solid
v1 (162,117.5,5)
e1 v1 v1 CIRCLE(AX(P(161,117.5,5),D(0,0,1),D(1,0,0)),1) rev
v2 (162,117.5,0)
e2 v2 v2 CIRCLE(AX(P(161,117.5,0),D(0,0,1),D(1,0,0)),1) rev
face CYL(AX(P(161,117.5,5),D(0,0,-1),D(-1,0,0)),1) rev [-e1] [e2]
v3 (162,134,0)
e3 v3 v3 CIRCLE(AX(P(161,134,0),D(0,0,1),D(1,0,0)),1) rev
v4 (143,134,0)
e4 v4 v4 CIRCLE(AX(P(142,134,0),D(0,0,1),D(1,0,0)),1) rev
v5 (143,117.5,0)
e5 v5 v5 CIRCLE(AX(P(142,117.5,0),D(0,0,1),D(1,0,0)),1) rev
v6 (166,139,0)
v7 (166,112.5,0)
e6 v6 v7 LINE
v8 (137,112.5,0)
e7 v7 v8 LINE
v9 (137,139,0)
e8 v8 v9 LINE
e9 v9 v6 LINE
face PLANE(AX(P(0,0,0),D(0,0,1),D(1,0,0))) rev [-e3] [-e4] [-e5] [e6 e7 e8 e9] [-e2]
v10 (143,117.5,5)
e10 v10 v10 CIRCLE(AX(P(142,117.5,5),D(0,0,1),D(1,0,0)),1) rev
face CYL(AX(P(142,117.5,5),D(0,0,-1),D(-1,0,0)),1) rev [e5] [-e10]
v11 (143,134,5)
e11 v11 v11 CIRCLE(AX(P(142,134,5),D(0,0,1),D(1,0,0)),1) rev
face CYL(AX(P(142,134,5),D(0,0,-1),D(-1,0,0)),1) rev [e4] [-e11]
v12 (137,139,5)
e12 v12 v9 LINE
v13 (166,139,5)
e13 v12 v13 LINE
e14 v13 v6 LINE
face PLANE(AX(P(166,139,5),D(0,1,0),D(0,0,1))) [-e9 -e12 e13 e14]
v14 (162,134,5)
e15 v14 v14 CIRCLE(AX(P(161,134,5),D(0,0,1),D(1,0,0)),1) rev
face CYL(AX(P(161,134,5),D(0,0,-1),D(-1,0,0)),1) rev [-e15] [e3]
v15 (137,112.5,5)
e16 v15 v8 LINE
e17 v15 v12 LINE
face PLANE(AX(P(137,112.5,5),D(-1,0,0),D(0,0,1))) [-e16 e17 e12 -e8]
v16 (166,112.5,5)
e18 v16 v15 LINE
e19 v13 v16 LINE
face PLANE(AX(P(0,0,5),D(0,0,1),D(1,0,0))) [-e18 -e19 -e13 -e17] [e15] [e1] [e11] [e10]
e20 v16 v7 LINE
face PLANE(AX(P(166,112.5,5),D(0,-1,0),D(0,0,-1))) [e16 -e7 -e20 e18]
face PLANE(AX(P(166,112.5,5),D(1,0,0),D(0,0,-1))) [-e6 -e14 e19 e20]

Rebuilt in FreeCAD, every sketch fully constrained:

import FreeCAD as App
import Part
import Sketcher
Q = App.Units.Quantity

doc = App.newDocument("Part")
params = doc.addObject("Spreadsheet::Sheet", "Params")
for row, (alias, value) in enumerate([
    ("sketch1_diameter", "2 mm"),
    ("sketch1_width", "66 mm"),
    ("sketch1_width2", "180 mm"),
    ("sketch1_width3", "50 mm"),
    ("sketch1_height", "60 mm"),
    ("pad1_length", "5 mm"),
    ("sketch2_diameter", "2 mm"),
    ("sketch3_diameter", "2 mm"),
    ("sketch3_width", "20 mm"),
    ("sketch3_height", "5 mm"),
    ("sketch4_width", "50 mm"),
    ("sketch4_height", "90 mm"),
    ("sketch5_width", "29 mm"),
    ("sketch5_height", "26.5 mm"),
], start=1):
    params.set(f"A{row}", alias)
    params.set(f"B{row}", "=" + value)
    params.setAlias(f"B{row}", alias)

body = doc.addObject("PartDesign::Body", "Body")

sketch1 = body.newObject("Sketcher::SketchObject", "Sketch")
sketch1.AttachmentSupport = (doc.getObject("XY_Plane"), [""])
sketch1.MapMode = "FlatFace"
sketch1.addGeometry([
    Part.LineSegment(App.Vector(-66, 110, 0), App.Vector(-66, 60, 0)),
    Part.LineSegment(App.Vector(-66, 60, 0), App.Vector(0, 60, 0)),
    Part.LineSegment(App.Vector(0, 60, 0), App.Vector(0, 0, 0)),
    Part.LineSegment(App.Vector(0, 0, 0), App.Vector(180, 0, 0)),
    Part.LineSegment(App.Vector(180, 0, 0), App.Vector(180, 60, 0)),
    Part.LineSegment(App.Vector(180, 60, 0), App.Vector(246, 60, 0)),
    Part.LineSegment(App.Vector(246, 60, 0), App.Vector(246, 110, 0)),
    Part.LineSegment(App.Vector(246, 110, 0), App.Vector(180, 110, 0)),
    Part.LineSegment(App.Vector(180, 110, 0), App.Vector(180, 300, 0)),
    Part.LineSegment(App.Vector(180, 300, 0), App.Vector(130, 300, 0)),
    Part.LineSegment(App.Vector(130, 300, 0), App.Vector(130, 150, 0)),
    Part.LineSegment(App.Vector(130, 150, 0), App.Vector(50, 150, 0)),
    Part.LineSegment(App.Vector(50, 150, 0), App.Vector(50, 300, 0)),
    Part.LineSegment(App.Vector(50, 300, 0), App.Vector(0, 300, 0)),
    Part.LineSegment(App.Vector(0, 300, 0), App.Vector(0, 110, 0)),
    Part.LineSegment(App.Vector(0, 110, 0), App.Vector(-66, 110, 0)),
    Part.Circle(App.Vector(161, 134, 0), App.Vector(0, 0, 1), 1),
    Part.Circle(App.Vector(19, 117.5, 0), App.Vector(0, 0, 1), 1),
    Part.Circle(App.Vector(38, 117.5, 0), App.Vector(0, 0, 1), 1),
    Part.Circle(App.Vector(142, 117.5, 0), App.Vector(0, 0, 1), 1),
    Part.Circle(App.Vector(161, 117.5, 0), App.Vector(0, 0, 1), 1),
    Part.Circle(App.Vector(19, 134, 0), App.Vector(0, 0, 1), 1),
    Part.Circle(App.Vector(38, 134, 0), App.Vector(0, 0, 1), 1),
    Part.Circle(App.Vector(142, 134, 0), App.Vector(0, 0, 1), 1),
], False)
sketch1.addConstraint([
    Sketcher.Constraint("Coincident", 0, 2, 1, 1),
    Sketcher.Constraint("Coincident", 1, 2, 2, 1),
    Sketcher.Constraint("Coincident", 2, 2, 3, 1),
    Sketcher.Constraint("Coincident", 3, 2, 4, 1),
    Sketcher.Constraint("Coincident", 4, 2, 5, 1),
    Sketcher.Constraint("Coincident", 5, 2, 6, 1),
    Sketcher.Constraint("Coincident", 6, 2, 7, 1),
    Sketcher.Constraint("Coincident", 7, 2, 8, 1),
    Sketcher.Constraint("Coincident", 8, 2, 9, 1),
    Sketcher.Constraint("Coincident", 9, 2, 10, 1),
    Sketcher.Constraint("Coincident", 10, 2, 11, 1),
    Sketcher.Constraint("Coincident", 11, 2, 12, 1),
    Sketcher.Constraint("Coincident", 12, 2, 13, 1),
    Sketcher.Constraint("Coincident", 13, 2, 14, 1),
    Sketcher.Constraint("Coincident", 14, 2, 15, 1),
    Sketcher.Constraint("Coincident", 15, 2, 0, 1),
    Sketcher.Constraint("Vertical", 0),
    Sketcher.Constraint("Horizontal", 1),
    Sketcher.Constraint("Vertical", 2),
    Sketcher.Constraint("Horizontal", 3),
    Sketcher.Constraint("Vertical", 4),
    Sketcher.Constraint("Horizontal", 5),
    Sketcher.Constraint("Vertical", 6),
    Sketcher.Constraint("Horizontal", 7),
    Sketcher.Constraint("Vertical", 8),
    Sketcher.Constraint("Horizontal", 9),
    Sketcher.Constraint("Vertical", 10),
    Sketcher.Constraint("Horizontal", 11),
    Sketcher.Constraint("Vertical", 12),
    Sketcher.Constraint("Horizontal", 13),
    Sketcher.Constraint("Vertical", 14),
    Sketcher.Constraint("Horizontal", 15),
    Sketcher.Constraint("Coincident", 2, 2, -1, 1),
    Sketcher.Constraint("Equal", 16, 17),
    Sketcher.Constraint("Equal", 17, 18),
    Sketcher.Constraint("Equal", 18, 19),
    Sketcher.Constraint("Equal", 19, 20),
    Sketcher.Constraint("Equal", 20, 21),
    Sketcher.Constraint("Equal", 21, 22),
    Sketcher.Constraint("Equal", 22, 23),
    Sketcher.Constraint("PointOnObject", 13, 2, -2),
    Sketcher.Constraint("Horizontal", 17, 3, 18, 3),
    Sketcher.Constraint("Horizontal", 18, 3, 19, 3),
    Sketcher.Constraint("Horizontal", 19, 3, 20, 3),
    Sketcher.Constraint("Horizontal", 16, 3, 21, 3),
    Sketcher.Constraint("Horizontal", 21, 3, 22, 3),
    Sketcher.Constraint("Horizontal", 22, 3, 23, 3),
    Sketcher.Constraint("Horizontal", 1, 2, 4, 2),
    Sketcher.Constraint("Horizontal", 9, 2, 12, 2),
    Sketcher.Constraint("Horizontal", 7, 2, 14, 2),
    Sketcher.Constraint("Vertical", 16, 3, 20, 3),
    Sketcher.Constraint("Vertical", 17, 3, 21, 3),
    Sketcher.Constraint("Vertical", 18, 3, 22, 3),
    Sketcher.Constraint("Vertical", 19, 3, 23, 3),
    Sketcher.Constraint("Vertical", 4, 2, 7, 2),
    Sketcher.Constraint("Equal", 1, 5),
    Sketcher.Constraint("Equal", 9, 13),
    Sketcher.Constraint("Equal", 13, 0),
    Sketcher.Constraint("Diameter", 16, Q("2 mm")),
    Sketcher.Constraint("DistanceX", 1, 1, 1, 2, Q("66 mm")),
    Sketcher.Constraint("DistanceX", 3, 1, 3, 2, Q("180 mm")),
    Sketcher.Constraint("DistanceX", 9, 2, 9, 1, Q("50 mm")),
    Sketcher.Constraint("DistanceY", 2, 2, 2, 1, Q("60 mm")),
    Sketcher.Constraint("DistanceY", 8, 1, 8, 2, Q("190 mm")),
    Sketcher.Constraint("DistanceY", 10, 2, 10, 1, Q("150 mm")),
    Sketcher.Constraint("DistanceX", -1, 1, 16, 3, Q("161 mm")),
    Sketcher.Constraint("DistanceY", -1, 1, 16, 3, Q("134 mm")),
    Sketcher.Constraint("DistanceX", -1, 1, 17, 3, Q("19 mm")),
    Sketcher.Constraint("DistanceX", -1, 1, 18, 3, Q("38 mm")),
    Sketcher.Constraint("DistanceX", -1, 1, 19, 3, Q("142 mm")),
    Sketcher.Constraint("DistanceY", -1, 1, 17, 3, Q("117.5 mm")),
])
sketch1.setExpression("Constraints[58]", "Params.sketch1_diameter")
sketch1.setExpression("Constraints[59]", "Params.sketch1_width")
sketch1.setExpression("Constraints[60]", "Params.sketch1_width2")
sketch1.setExpression("Constraints[61]", "Params.sketch1_width3")
sketch1.setExpression("Constraints[62]", "Params.sketch1_height")
pad1 = body.newObject("PartDesign::Pad", "Pad")
pad1.Profile = sketch1
pad1.setExpression("Length", "Params.pad1_length")

sketch2 = body.newObject("Sketcher::SketchObject", "Sketch001")
sketch2.AttachmentSupport = (doc.getObject("XY_Plane"), [""])
sketch2.MapMode = "FlatFace"
sketch2.AttachmentOffset = App.Placement(App.Vector(0, 0, 5), App.Rotation())
sketch2.addGeometry([
    Part.Circle(App.Vector(-58, 103, 0), App.Vector(0, 0, 1), 1),
    Part.Circle(App.Vector(-58, 67, 0), App.Vector(0, 0, 1), 1),
    Part.Circle(App.Vector(238, 67, 0), App.Vector(0, 0, 1), 1),
    Part.Circle(App.Vector(238, 103, 0), App.Vector(0, 0, 1), 1),
], False)
sketch2.addConstraint([
    Sketcher.Constraint("Equal", 0, 1),
    Sketcher.Constraint("Equal", 1, 2),
    Sketcher.Constraint("Equal", 2, 3),
    Sketcher.Constraint("Horizontal", 1, 3, 2, 3),
    Sketcher.Constraint("Horizontal", 0, 3, 3, 3),
    Sketcher.Constraint("Vertical", 0, 3, 1, 3),
    Sketcher.Constraint("Vertical", 2, 3, 3, 3),
    Sketcher.Constraint("Diameter", 0, Q("2 mm")),
    Sketcher.Constraint("DistanceX", 0, 3, -1, 1, Q("58 mm")),
    Sketcher.Constraint("DistanceY", -1, 1, 0, 3, Q("103 mm")),
    Sketcher.Constraint("DistanceY", -1, 1, 1, 3, Q("67 mm")),
    Sketcher.Constraint("DistanceX", -1, 1, 2, 3, Q("238 mm")),
])
sketch2.setExpression("Constraints[7]", "Params.sketch2_diameter")
pocket1 = body.newObject("PartDesign::Pocket", "Pocket")
pocket1.Profile = sketch2
pocket1.Type = "ThroughAll"

sketch3 = body.newObject("Sketcher::SketchObject", "Sketch002")
sketch3.AttachmentSupport = (doc.getObject("XY_Plane"), [""])
sketch3.MapMode = "FlatFace"
sketch3.AttachmentOffset = App.Placement(App.Vector(0, 0, 5), App.Rotation())
sketch3.addGeometry([
    Part.Circle(App.Vector(19, 77, 0), App.Vector(0, 0, 1), 1),
    Part.Circle(App.Vector(19, 99.5, 0), App.Vector(0, 0, 1), 1),
    Part.Circle(App.Vector(161, 77, 0), App.Vector(0, 0, 1), 1),
    Part.Circle(App.Vector(161, 99.5, 0), App.Vector(0, 0, 1), 1),
    Part.LineSegment(App.Vector(-16, 92.5, 0), App.Vector(-16, 87.5, 0)),
    Part.LineSegment(App.Vector(-16, 87.5, 0), App.Vector(4, 87.5, 0)),
    Part.LineSegment(App.Vector(4, 87.5, 0), App.Vector(4, 92.5, 0)),
    Part.LineSegment(App.Vector(4, 92.5, 0), App.Vector(-16, 92.5, 0)),
    Part.LineSegment(App.Vector(176, 92.5, 0), App.Vector(176, 87.5, 0)),
    Part.LineSegment(App.Vector(176, 87.5, 0), App.Vector(196, 87.5, 0)),
    Part.LineSegment(App.Vector(196, 87.5, 0), App.Vector(196, 92.5, 0)),
    Part.LineSegment(App.Vector(196, 92.5, 0), App.Vector(176, 92.5, 0)),
], False)
sketch3.addConstraint([
    Sketcher.Constraint("Coincident", 4, 2, 5, 1),
    Sketcher.Constraint("Coincident", 5, 2, 6, 1),
    Sketcher.Constraint("Coincident", 6, 2, 7, 1),
    Sketcher.Constraint("Coincident", 7, 2, 4, 1),
    Sketcher.Constraint("Coincident", 8, 2, 9, 1),
    Sketcher.Constraint("Coincident", 9, 2, 10, 1),
    Sketcher.Constraint("Coincident", 10, 2, 11, 1),
    Sketcher.Constraint("Coincident", 11, 2, 8, 1),
    Sketcher.Constraint("Vertical", 4),
    Sketcher.Constraint("Horizontal", 5),
    Sketcher.Constraint("Vertical", 6),
    Sketcher.Constraint("Horizontal", 7),
    Sketcher.Constraint("Vertical", 8),
    Sketcher.Constraint("Horizontal", 9),
    Sketcher.Constraint("Vertical", 10),
    Sketcher.Constraint("Horizontal", 11),
    Sketcher.Constraint("Equal", 0, 1),
    Sketcher.Constraint("Equal", 1, 2),
    Sketcher.Constraint("Equal", 2, 3),
    Sketcher.Constraint("Horizontal", 0, 3, 2, 3),
    Sketcher.Constraint("Horizontal", 1, 3, 3, 3),
    Sketcher.Constraint("Horizontal", 5, 2, 8, 2),
    Sketcher.Constraint("Horizontal", 7, 2, 10, 2),
    Sketcher.Constraint("Vertical", 0, 3, 1, 3),
    Sketcher.Constraint("Vertical", 2, 3, 3, 3),
    Sketcher.Constraint("Equal", 7, 9),
    Sketcher.Constraint("Diameter", 0, Q("2 mm")),
    Sketcher.Constraint("DistanceX", 5, 1, 5, 2, Q("20 mm")),
    Sketcher.Constraint("DistanceY", 4, 2, 4, 1, Q("5 mm")),
    Sketcher.Constraint("DistanceX", -1, 1, 0, 3, Q("19 mm")),
    Sketcher.Constraint("DistanceY", -1, 1, 0, 3, Q("77 mm")),
    Sketcher.Constraint("DistanceX", -1, 1, 2, 3, Q("161 mm")),
    Sketcher.Constraint("DistanceX", 4, 2, -1, 1, Q("16 mm")),
    Sketcher.Constraint("DistanceX", -1, 1, 8, 2, Q("176 mm")),
    Sketcher.Constraint("DistanceY", 4, 2, 1, 3, Q("12 mm")),
    Sketcher.Constraint("DistanceY", -1, 1, 1, 3, Q("99.5 mm")),
])
sketch3.setExpression("Constraints[26]", "Params.sketch3_diameter")
sketch3.setExpression("Constraints[27]", "Params.sketch3_width")
sketch3.setExpression("Constraints[28]", "Params.sketch3_height")
pocket2 = body.newObject("PartDesign::Pocket", "Pocket001")
pocket2.Profile = sketch3
pocket2.Type = "ThroughAll"

sketch4 = body.newObject("Sketcher::SketchObject", "Sketch003")
sketch4.AttachmentSupport = (doc.getObject("XY_Plane"), [""])
sketch4.MapMode = "FlatFace"
sketch4.AttachmentOffset = App.Placement(App.Vector(0, 0, 5), App.Rotation())
sketch4.addGeometry([
    Part.LineSegment(App.Vector(180, 60, 0), App.Vector(130, 60, 0)),
    Part.LineSegment(App.Vector(130, 60, 0), App.Vector(130, 150, 0)),
    Part.LineSegment(App.Vector(130, 150, 0), App.Vector(65, 312, 0)),
    Part.LineSegment(App.Vector(65, 312, 0), App.Vector(-51, 321, 0)),
    Part.LineSegment(App.Vector(-51, 321, 0), App.Vector(-108, -9, 0)),
    Part.LineSegment(App.Vector(-108, -9, 0), App.Vector(175, -21, 0)),
    Part.LineSegment(App.Vector(175, -21, 0), App.Vector(198, 9, 0)),
    Part.LineSegment(App.Vector(198, 9, 0), App.Vector(180, 60, 0)),
], False)
sketch4.addConstraint([
    Sketcher.Constraint("Coincident", 0, 2, 1, 1),
    Sketcher.Constraint("Coincident", 1, 2, 2, 1),
    Sketcher.Constraint("Coincident", 2, 2, 3, 1),
    Sketcher.Constraint("Coincident", 3, 2, 4, 1),
    Sketcher.Constraint("Coincident", 4, 2, 5, 1),
    Sketcher.Constraint("Coincident", 5, 2, 6, 1),
    Sketcher.Constraint("Coincident", 6, 2, 7, 1),
    Sketcher.Constraint("Coincident", 7, 2, 0, 1),
    Sketcher.Constraint("Horizontal", 0),
    Sketcher.Constraint("Vertical", 1),
    Sketcher.Constraint("DistanceX", 0, 2, 0, 1, Q("50 mm")),
    Sketcher.Constraint("DistanceY", 1, 1, 1, 2, Q("90 mm")),
    Sketcher.Constraint("DistanceX", -1, 1, 0, 2, Q("130 mm")),
    Sketcher.Constraint("DistanceY", -1, 1, 0, 2, Q("60 mm")),
    Sketcher.Constraint("DistanceY", 5, 2, -1, 1, Q("20.859099 mm")),
    Sketcher.Constraint("Distance", 3, Q("116.490012 mm")),
    Sketcher.Constraint("Distance", 4, Q("335.279951 mm")),
    Sketcher.Constraint("Distance", 5, Q("283.512608 mm")),
    Sketcher.Constraint("Distance", 6, Q("37.488982 mm")),
    Sketcher.Constraint("DistanceX", 4, 2, -1, 1, Q("107.93939 mm")),
    Sketcher.Constraint("DistanceX", -1, 1, 5, 2, Q("175.332138 mm")),
    Sketcher.Constraint("DistanceY", -1, 1, 6, 2, Q("8.75388 mm")),
    Sketcher.Constraint("DistanceX", 3, 2, 2, 2, Q("116.114051 mm")),
    Sketcher.Constraint("DistanceY", 4, 2, 3, 2, Q("330.418509 mm")),
])
sketch4.setExpression("Constraints[10]", "Params.sketch4_width")
sketch4.setExpression("Constraints[11]", "Params.sketch4_height")
pocket3 = body.newObject("PartDesign::Pocket", "Pocket002")
pocket3.Profile = sketch4
pocket3.Type = "ThroughAll"

sketch5 = body.newObject("Sketcher::SketchObject", "Sketch004")
sketch5.AttachmentSupport = (doc.getObject("XY_Plane"), [""])
sketch5.MapMode = "FlatFace"
sketch5.addGeometry([
    Part.LineSegment(App.Vector(274, 328, 0), App.Vector(274, 32, 0)),
    Part.LineSegment(App.Vector(274, 32, 0), App.Vector(102, 32, 0)),
    Part.LineSegment(App.Vector(102, 32, 0), App.Vector(102, 328, 0)),
    Part.LineSegment(App.Vector(102, 328, 0), App.Vector(274, 328, 0)),
    Part.LineSegment(App.Vector(137, 112, 0), App.Vector(166, 112, 0)),
    Part.LineSegment(App.Vector(166, 112, 0), App.Vector(166, 139, 0)),
    Part.LineSegment(App.Vector(166, 139, 0), App.Vector(137, 139, 0)),
    Part.LineSegment(App.Vector(137, 139, 0), App.Vector(137, 112, 0)),
], False)
sketch5.addConstraint([
    Sketcher.Constraint("Coincident", 0, 2, 1, 1),
    Sketcher.Constraint("Coincident", 1, 2, 2, 1),
    Sketcher.Constraint("Coincident", 2, 2, 3, 1),
    Sketcher.Constraint("Coincident", 3, 2, 0, 1),
    Sketcher.Constraint("Coincident", 4, 2, 5, 1),
    Sketcher.Constraint("Coincident", 5, 2, 6, 1),
    Sketcher.Constraint("Coincident", 6, 2, 7, 1),
    Sketcher.Constraint("Coincident", 7, 2, 4, 1),
    Sketcher.Constraint("Vertical", 0),
    Sketcher.Constraint("Horizontal", 1),
    Sketcher.Constraint("Vertical", 2),
    Sketcher.Constraint("Horizontal", 3),
    Sketcher.Constraint("Horizontal", 4),
    Sketcher.Constraint("Vertical", 5),
    Sketcher.Constraint("Horizontal", 6),
    Sketcher.Constraint("Vertical", 7),
    Sketcher.Constraint("DistanceX", 4, 1, 4, 2, Q("29 mm")),
    Sketcher.Constraint("DistanceY", 5, 1, 5, 2, Q("26.5 mm")),
    Sketcher.Constraint("DistanceX", -1, 1, 4, 2, Q("166 mm")),
    Sketcher.Constraint("DistanceY", -1, 1, 5, 2, Q("139 mm")),
    Sketcher.Constraint("DistanceX", 1, 2, 1, 1, Q("171.322 mm")),
    Sketcher.Constraint("DistanceY", 0, 2, 0, 1, Q("295.322 mm")),
    Sketcher.Constraint("DistanceX", -1, 1, 0, 2, Q("273.661 mm")),
    Sketcher.Constraint("DistanceY", -1, 1, 0, 2, Q("32.339 mm")),
])
sketch5.setExpression("Constraints[16]", "Params.sketch5_width")
sketch5.setExpression("Constraints[17]", "Params.sketch5_height")
pocket4 = body.newObject("PartDesign::Pocket", "Pocket003")
pocket4.Profile = sketch5
pocket4.Type = "ThroughAll"
pocket4.Reversed = True

doc.recompute()
